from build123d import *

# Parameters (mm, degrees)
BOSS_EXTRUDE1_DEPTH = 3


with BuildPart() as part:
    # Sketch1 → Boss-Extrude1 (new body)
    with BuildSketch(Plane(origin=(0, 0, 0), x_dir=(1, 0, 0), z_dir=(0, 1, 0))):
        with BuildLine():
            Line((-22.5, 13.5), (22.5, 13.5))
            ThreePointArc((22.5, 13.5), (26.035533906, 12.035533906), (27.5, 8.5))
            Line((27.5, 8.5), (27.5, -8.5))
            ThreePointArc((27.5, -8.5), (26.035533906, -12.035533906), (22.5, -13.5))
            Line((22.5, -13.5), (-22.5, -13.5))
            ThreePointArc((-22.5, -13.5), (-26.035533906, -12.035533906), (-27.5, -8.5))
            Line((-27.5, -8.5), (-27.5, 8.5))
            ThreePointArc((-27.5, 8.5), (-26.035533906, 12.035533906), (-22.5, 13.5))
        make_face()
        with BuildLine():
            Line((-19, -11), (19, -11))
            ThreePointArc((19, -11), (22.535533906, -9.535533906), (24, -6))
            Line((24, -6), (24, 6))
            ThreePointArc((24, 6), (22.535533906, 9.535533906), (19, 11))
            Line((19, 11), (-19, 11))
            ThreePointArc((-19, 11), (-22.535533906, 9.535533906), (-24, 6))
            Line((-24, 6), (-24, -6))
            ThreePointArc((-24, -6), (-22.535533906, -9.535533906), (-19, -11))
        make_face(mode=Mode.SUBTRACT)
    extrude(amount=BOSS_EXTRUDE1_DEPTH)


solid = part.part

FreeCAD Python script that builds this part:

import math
import FreeCAD as App
import Part
import Sketcher

V = App.Vector
Q = App.Units.Quantity

doc = App.newDocument("Part")
body = doc.addObject("PartDesign::Body", "Body")

sketch1 = body.newObject("Sketcher::SketchObject", "Sketch")
sketch1.AttachmentSupport = (doc.getObject("XZ_Plane"), [""])
sketch1.MapMode = "FlatFace"
sketch1.addGeometry(Part.LineSegment(V(22, -14, 0), V(-22, -14, 0)), False)
sketch1.addGeometry(Part.ArcOfCircle(Part.Circle(V(-22, -8, 0), V(0, 0, 1), 5), math.radians(180), math.radians(270)), False)
sketch1.addGeometry(Part.LineSegment(V(-28, -8, 0), V(-28, 8, 0)), False)
sketch1.addGeometry(Part.ArcOfCircle(Part.Circle(V(-22, 8, 0), V(0, 0, 1), 5), math.radians(90), math.radians(180)), False)
sketch1.addGeometry(Part.LineSegment(V(-22, 14, 0), V(22, 14, 0)), False)
sketch1.addGeometry(Part.ArcOfCircle(Part.Circle(V(22, 8, 0), V(0, 0, 1), 5), math.radians(0), math.radians(90)), False)
sketch1.addGeometry(Part.LineSegment(V(28, 8, 0), V(28, -8, 0)), False)
sketch1.addGeometry(Part.ArcOfCircle(Part.Circle(V(22, -8, 0), V(0, 0, 1), 5), math.radians(-90), math.radians(0)), False)
sketch1.addGeometry(Part.ArcOfCircle(Part.Circle(V(-19, 6, 0), V(0, 0, 1), 5), math.radians(90), math.radians(180)), False)
sketch1.addGeometry(Part.LineSegment(V(-24, 6, 0), V(-24, -6, 0)), False)
sketch1.addGeometry(Part.ArcOfCircle(Part.Circle(V(-19, -6, 0), V(0, 0, 1), 5), math.radians(180), math.radians(270)), False)
sketch1.addGeometry(Part.LineSegment(V(-19, -11, 0), V(19, -11, 0)), False)
sketch1.addGeometry(Part.ArcOfCircle(Part.Circle(V(19, -6, 0), V(0, 0, 1), 5), math.radians(-90), math.radians(0)), False)
sketch1.addGeometry(Part.LineSegment(V(24, -6, 0), V(24, 6, 0)), False)
sketch1.addGeometry(Part.ArcOfCircle(Part.Circle(V(19, 6, 0), V(0, 0, 1), 5), math.radians(0), math.radians(90)), False)
sketch1.addGeometry(Part.LineSegment(V(19, 11, 0), V(-19, 11, 0)), False)
sketch1.addConstraint(Sketcher.Constraint("Tangent", 0, 2, 1, 2))
sketch1.addConstraint(Sketcher.Constraint("Tangent", 1, 1, 2, 1))
sketch1.addConstraint(Sketcher.Constraint("Tangent", 2, 2, 3, 2))
sketch1.addConstraint(Sketcher.Constraint("Tangent", 3, 1, 4, 1))
sketch1.addConstraint(Sketcher.Constraint("Tangent", 4, 2, 5, 2))
sketch1.addConstraint(Sketcher.Constraint("Tangent", 5, 1, 6, 1))
sketch1.addConstraint(Sketcher.Constraint("Tangent", 6, 2, 7, 2))
sketch1.addConstraint(Sketcher.Constraint("Tangent", 7, 1, 0, 1))
sketch1.addConstraint(Sketcher.Constraint("Tangent", 8, 2, 9, 1))
sketch1.addConstraint(Sketcher.Constraint("Tangent", 9, 2, 10, 1))
sketch1.addConstraint(Sketcher.Constraint("Tangent", 10, 2, 11, 1))
sketch1.addConstraint(Sketcher.Constraint("Tangent", 11, 2, 12, 1))
sketch1.addConstraint(Sketcher.Constraint("Tangent", 12, 2, 13, 1))
sketch1.addConstraint(Sketcher.Constraint("Tangent", 13, 2, 14, 1))
sketch1.addConstraint(Sketcher.Constraint("Tangent", 14, 2, 15, 1))
sketch1.addConstraint(Sketcher.Constraint("Tangent", 15, 2, 8, 1))
sketch1.addConstraint(Sketcher.Constraint("Horizontal", 0))
sketch1.addConstraint(Sketcher.Constraint("Vertical", 2))
sketch1.addConstraint(Sketcher.Constraint("Horizontal", 4))
sketch1.addConstraint(Sketcher.Constraint("Vertical", 6))
sketch1.addConstraint(Sketcher.Constraint("Vertical", 9))
sketch1.addConstraint(Sketcher.Constraint("Horizontal", 11))
sketch1.addConstraint(Sketcher.Constraint("Vertical", 13))
sketch1.addConstraint(Sketcher.Constraint("Horizontal", 15))
sketch1.addConstraint(Sketcher.Constraint("Equal", 1, 3))
sketch1.addConstraint(Sketcher.Constraint("Equal", 3, 5))
sketch1.addConstraint(Sketcher.Constraint("Equal", 5, 7))
sketch1.addConstraint(Sketcher.Constraint("Equal", 7, 8))
sketch1.addConstraint(Sketcher.Constraint("Equal", 8, 10))
sketch1.addConstraint(Sketcher.Constraint("Equal", 10, 12))
sketch1.addConstraint(Sketcher.Constraint("Equal", 12, 14))
sketch1.addConstraint(Sketcher.Constraint("Symmetric", 1, 3, 5, 3, -1, 1))
sketch1.addConstraint(Sketcher.Constraint("Symmetric", 8, 3, 12, 3, -1, 1))
sketch1.addConstraint(Sketcher.Constraint("Radius", 1, Q("5 mm")))
sketch1.addConstraint(Sketcher.Constraint("DistanceX", 0, 2, 0, 1, Q("45 mm")))
sketch1.addConstraint(Sketcher.Constraint("DistanceX", 11, 1, 11, 2, Q("38 mm")))
sketch1.addConstraint(Sketcher.Constraint("DistanceY", 2, 1, 2, 2, Q("17 mm")))
sketch1.addConstraint(Sketcher.Constraint("DistanceY", 9, 2, 9, 1, Q("12 mm")))
pad1 = body.newObject("PartDesign::Pad", "Pad")
pad1.Profile = sketch1
pad1.Length = 3
pad1.Reversed = True

doc.recompute()
